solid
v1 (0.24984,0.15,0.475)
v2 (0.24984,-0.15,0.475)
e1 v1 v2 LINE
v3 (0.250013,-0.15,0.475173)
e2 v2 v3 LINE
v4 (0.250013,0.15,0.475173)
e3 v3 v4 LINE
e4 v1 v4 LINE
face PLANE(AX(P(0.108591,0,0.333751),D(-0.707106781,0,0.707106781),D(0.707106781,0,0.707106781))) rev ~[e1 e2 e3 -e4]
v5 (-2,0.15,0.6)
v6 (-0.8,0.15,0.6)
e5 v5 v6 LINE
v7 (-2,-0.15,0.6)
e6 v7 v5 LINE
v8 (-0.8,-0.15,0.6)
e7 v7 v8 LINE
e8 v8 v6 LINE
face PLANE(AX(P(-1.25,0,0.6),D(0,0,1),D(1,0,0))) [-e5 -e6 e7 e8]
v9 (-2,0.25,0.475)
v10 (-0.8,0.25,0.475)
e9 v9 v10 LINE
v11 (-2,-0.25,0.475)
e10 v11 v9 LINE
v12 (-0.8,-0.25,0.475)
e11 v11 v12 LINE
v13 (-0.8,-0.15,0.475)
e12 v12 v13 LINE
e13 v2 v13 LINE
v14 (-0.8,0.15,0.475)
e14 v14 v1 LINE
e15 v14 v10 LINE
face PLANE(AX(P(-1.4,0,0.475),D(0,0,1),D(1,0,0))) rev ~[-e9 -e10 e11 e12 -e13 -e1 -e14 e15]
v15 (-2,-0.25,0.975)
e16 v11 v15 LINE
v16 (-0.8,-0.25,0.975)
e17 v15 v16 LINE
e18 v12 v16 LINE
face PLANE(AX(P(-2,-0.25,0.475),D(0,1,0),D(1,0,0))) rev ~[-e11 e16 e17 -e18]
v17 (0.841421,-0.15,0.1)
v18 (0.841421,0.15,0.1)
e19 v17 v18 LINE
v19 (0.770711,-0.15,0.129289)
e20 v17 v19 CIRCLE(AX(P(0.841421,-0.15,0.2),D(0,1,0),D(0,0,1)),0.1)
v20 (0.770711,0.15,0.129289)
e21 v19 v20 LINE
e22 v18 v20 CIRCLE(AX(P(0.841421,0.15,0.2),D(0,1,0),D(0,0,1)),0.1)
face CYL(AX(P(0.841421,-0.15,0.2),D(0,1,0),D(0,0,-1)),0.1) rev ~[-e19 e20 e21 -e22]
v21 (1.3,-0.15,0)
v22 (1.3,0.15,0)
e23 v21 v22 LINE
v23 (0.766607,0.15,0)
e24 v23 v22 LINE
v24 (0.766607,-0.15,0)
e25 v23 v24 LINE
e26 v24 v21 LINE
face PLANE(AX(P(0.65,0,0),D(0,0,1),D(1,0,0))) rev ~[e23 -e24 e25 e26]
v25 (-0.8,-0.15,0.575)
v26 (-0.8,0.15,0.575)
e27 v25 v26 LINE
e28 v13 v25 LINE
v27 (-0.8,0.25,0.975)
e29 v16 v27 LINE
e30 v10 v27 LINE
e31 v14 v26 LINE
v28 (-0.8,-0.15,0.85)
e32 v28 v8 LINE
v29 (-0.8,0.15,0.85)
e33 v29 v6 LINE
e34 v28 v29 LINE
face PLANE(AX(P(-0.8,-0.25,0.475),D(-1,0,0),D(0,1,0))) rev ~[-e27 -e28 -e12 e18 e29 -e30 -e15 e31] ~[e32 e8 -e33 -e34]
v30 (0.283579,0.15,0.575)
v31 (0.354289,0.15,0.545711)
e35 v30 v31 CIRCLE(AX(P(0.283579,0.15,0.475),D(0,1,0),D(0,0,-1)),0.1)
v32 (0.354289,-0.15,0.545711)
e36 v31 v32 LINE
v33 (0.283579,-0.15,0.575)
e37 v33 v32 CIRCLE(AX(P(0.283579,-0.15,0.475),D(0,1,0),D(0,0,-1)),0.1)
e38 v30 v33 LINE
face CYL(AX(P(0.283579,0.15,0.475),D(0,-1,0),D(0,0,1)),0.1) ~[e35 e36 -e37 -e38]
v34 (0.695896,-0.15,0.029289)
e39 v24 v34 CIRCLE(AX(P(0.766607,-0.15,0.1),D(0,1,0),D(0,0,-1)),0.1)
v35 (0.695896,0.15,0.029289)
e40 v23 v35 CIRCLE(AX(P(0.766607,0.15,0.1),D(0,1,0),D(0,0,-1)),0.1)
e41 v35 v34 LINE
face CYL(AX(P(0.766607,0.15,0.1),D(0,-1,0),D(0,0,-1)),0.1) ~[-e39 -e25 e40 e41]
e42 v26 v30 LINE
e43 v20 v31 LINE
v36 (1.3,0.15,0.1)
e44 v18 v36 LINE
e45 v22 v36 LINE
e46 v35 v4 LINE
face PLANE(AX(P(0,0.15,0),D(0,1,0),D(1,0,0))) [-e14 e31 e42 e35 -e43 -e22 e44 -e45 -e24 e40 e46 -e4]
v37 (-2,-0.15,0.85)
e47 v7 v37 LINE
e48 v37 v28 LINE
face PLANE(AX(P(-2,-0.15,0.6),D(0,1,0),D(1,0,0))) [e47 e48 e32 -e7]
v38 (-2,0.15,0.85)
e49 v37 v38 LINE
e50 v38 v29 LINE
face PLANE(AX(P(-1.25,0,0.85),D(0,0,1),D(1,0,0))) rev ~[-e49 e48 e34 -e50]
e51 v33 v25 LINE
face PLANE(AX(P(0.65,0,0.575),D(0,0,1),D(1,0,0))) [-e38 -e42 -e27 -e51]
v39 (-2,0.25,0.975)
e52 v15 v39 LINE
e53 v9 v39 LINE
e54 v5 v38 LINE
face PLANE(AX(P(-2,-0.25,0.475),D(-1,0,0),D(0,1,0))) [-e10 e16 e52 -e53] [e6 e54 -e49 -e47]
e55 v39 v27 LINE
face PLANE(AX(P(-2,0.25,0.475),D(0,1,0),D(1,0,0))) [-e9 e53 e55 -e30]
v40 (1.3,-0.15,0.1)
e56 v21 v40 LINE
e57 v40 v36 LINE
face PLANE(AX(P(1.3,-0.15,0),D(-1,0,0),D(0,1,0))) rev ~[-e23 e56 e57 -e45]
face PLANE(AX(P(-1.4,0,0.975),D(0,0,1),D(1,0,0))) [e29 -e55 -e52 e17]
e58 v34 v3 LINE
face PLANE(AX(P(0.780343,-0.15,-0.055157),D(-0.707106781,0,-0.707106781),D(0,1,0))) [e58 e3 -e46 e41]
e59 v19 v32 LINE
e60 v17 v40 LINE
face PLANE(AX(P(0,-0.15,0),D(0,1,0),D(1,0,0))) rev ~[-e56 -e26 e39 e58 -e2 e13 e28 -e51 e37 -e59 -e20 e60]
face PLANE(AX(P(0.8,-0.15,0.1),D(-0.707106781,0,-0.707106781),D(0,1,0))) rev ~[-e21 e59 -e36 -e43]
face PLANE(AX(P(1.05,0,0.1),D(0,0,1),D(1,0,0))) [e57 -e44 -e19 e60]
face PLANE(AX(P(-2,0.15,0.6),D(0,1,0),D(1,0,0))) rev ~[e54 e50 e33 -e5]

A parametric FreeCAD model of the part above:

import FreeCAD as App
import Part
import Sketcher

V = App.Vector


def edges_at(feature, points):
    """Names of the edges that pass closest to the given points."""
    edges = feature.Shape.Edges
    near = lambda p: min(range(len(edges)), key=lambda i: edges[i].distToShape(Part.Vertex(*p))[0])
    return sorted({f"Edge{near(p) + 1}" for p in points})


def add_polygon(sketch, points):
    """Adds a closed chain of lines whose ends are joined by coincident constraints."""
    first, n = sketch.GeometryCount, len(points)
    for a, b in zip(points, points[1:] + points[:1]):
        sketch.addGeometry(Part.LineSegment(App.Vector(*a, 0), App.Vector(*b, 0)), False)
    for i in range(n):
        sketch.addConstraint(Sketcher.Constraint("Coincident", first + i, 2, first + (i + 1) % n, 1))

doc = App.newDocument("Part")
body = doc.addObject("PartDesign::Body", "Body")

# Sketch on XY plane
sketch1 = body.newObject("Sketcher::SketchObject", "Sketch")
sketch1.AttachmentSupport = (doc.getObject("XY_Plane"), [""])
sketch1.MapMode = "FlatFace"
sketch1.AttachmentOffset = App.Placement(V(0, 0, 0.475), App.Rotation())
add_polygon(sketch1, [(-2, 4.75), (-2, 4.25), (-0.8, 4.25), (-0.8, 4.75)])  # lines 0-3
sketch1.addConstraint([
    Sketcher.Constraint("Vertical", 0),
    Sketcher.Constraint("Horizontal", 1),
    Sketcher.Constraint("Vertical", 2),
    Sketcher.Constraint("Horizontal", 3),
    Sketcher.Constraint("DistanceX", 1, 1, 1, 2, 1.2),
    Sketcher.Constraint("DistanceY", 0, 2, 0, 1, 0.5),
    Sketcher.Constraint("DistanceX", 0, 2, -1, 1, 2.0),
    Sketcher.Constraint("DistanceY", -1, 1, 0, 2, 4.25),
])
pad1 = body.newObject("PartDesign::Pad", "Pad")
pad1.Profile = sketch1
pad1.Length = 0.5

# Sketch on XY plane
sketch2 = body.newObject("Sketcher::SketchObject", "Sketch001")
sketch2.AttachmentSupport = (doc.getObject("XY_Plane"), [""])
sketch2.MapMode = "FlatFace"
sketch2.AttachmentOffset = App.Placement(V(0, 0, 0.475), App.Rotation())
add_polygon(sketch2, [(-0.8, 4.65), (-0.8, 4.35), (0.7, 4.35), (0.7, 4.65)])  # lines 0-3
sketch2.addConstraint([
    Sketcher.Constraint("Vertical", 0),
    Sketcher.Constraint("Horizontal", 1),
    Sketcher.Constraint("Vertical", 2),
    Sketcher.Constraint("Horizontal", 3),
    Sketcher.Constraint("DistanceX", 1, 1, 1, 2, 1.5),
    Sketcher.Constraint("DistanceY", 0, 2, 0, 1, 0.3),
    Sketcher.Constraint("DistanceX", 0, 2, -1, 1, 0.8),
    Sketcher.Constraint("DistanceY", -1, 1, 0, 2, 4.35),
])
pad2 = body.newObject("PartDesign::Pad", "Pad001")
pad2.Profile = sketch2
pad2.Length = 0.1

# Sketch on XY plane
sketch3 = body.newObject("Sketcher::SketchObject", "Sketch002")
sketch3.AttachmentSupport = (doc.getObject("XY_Plane"), [""])
sketch3.MapMode = "FlatFace"
add_polygon(sketch3, [(0, 4.65), (0, 4.35), (1.3, 4.35), (1.3, 4.65)])  # lines 0-3
sketch3.addConstraint([
    Sketcher.Constraint("Vertical", 0),
    Sketcher.Constraint("Horizontal", 1),
    Sketcher.Constraint("Vertical", 2),
    Sketcher.Constraint("Horizontal", 3),
    Sketcher.Constraint("PointOnObject", 0, 2, -2),
    Sketcher.Constraint("DistanceX", 1, 1, 1, 2, 1.3),
    Sketcher.Constraint("DistanceY", 0, 2, 0, 1, 0.3),
    Sketcher.Constraint("DistanceY", -1, 1, 0, 2, 4.35),
])
pad3 = body.newObject("PartDesign::Pad", "Pad002")
pad3.Profile = sketch3
pad3.Length = 0.575

# Sketch on XY plane
sketch4 = body.newObject("Sketcher::SketchObject", "Sketch003")
sketch4.AttachmentSupport = (doc.getObject("XY_Plane"), [""])
sketch4.MapMode = "FlatFace"
add_polygon(sketch4, [(0, 4.65), (0, 4.35), (0.25, 4.35), (0.25, 4.65)])  # lines 0-3
sketch4.addConstraint([
    Sketcher.Constraint("Vertical", 0),
    Sketcher.Constraint("Horizontal", 1),
    Sketcher.Constraint("Vertical", 2),
    Sketcher.Constraint("Horizontal", 3),
    Sketcher.Constraint("PointOnObject", 0, 2, -2),
    Sketcher.Constraint("DistanceY", 0, 2, 0, 1, 0.3),
    Sketcher.Constraint("DistanceX", 1, 1, 1, 2, 0.25),
    Sketcher.Constraint("DistanceY", -1, 1, 0, 2, 4.35),
])
pocket1 = body.newObject("PartDesign::Pocket", "Pocket")
pocket1.Profile = sketch4
pocket1.Length = 0.475
pocket1.Reversed = True

# Sketch on XY plane
sketch5 = body.newObject("Sketcher::SketchObject", "Sketch004")
sketch5.AttachmentSupport = (doc.getObject("XY_Plane"), [""])
sketch5.MapMode = "FlatFace"
sketch5.AttachmentOffset = App.Placement(V(0, 0, 0.1), App.Rotation())
add_polygon(sketch5, [(0.8, 4.65), (0.8, 4.35), (1.3, 4.35), (1.3, 4.65)])  # lines 0-3
sketch5.addConstraint([
    Sketcher.Constraint("Vertical", 0),
    Sketcher.Constraint("Horizontal", 1),
    Sketcher.Constraint("Vertical", 2),
    Sketcher.Constraint("Horizontal", 3),
    Sketcher.Constraint("DistanceX", 1, 1, 1, 2, 0.5),
    Sketcher.Constraint("DistanceY", 0, 2, 0, 1, 0.3),
    Sketcher.Constraint("DistanceX", -1, 1, 0, 2, 0.8),
    Sketcher.Constraint("DistanceY", -1, 1, 0, 2, 4.35),
])
pocket2 = body.newObject("PartDesign::Pocket", "Pocket001")
pocket2.Profile = sketch5
pocket2.Length = 0.5
pocket2.Reversed = True

# Sketch on an angled plane
sketch6 = body.newObject("Sketcher::SketchObject", "Sketch005")
sketch6.Placement = App.Placement(V(0.8, 4.35, 0.1), App.Rotation(V(0.707106781, 0, 0.707106781), V(0, 0.999999999, 0), V(-0.707106781, 0, 0.707106781), "ZXY"))
add_polygon(sketch6, [(0, 0.3), (0, 0), (0.5, 0), (0.5, 0.3)])  # lines 0-3
sketch6.addConstraint([
    Sketcher.Constraint("Vertical", 0),
    Sketcher.Constraint("Horizontal", 1),
    Sketcher.Constraint("Vertical", 2),
    Sketcher.Constraint("Horizontal", 3),
    Sketcher.Constraint("Coincident", 0, 2, -1, 1),
    Sketcher.Constraint("DistanceX", 1, 1, 1, 2, 0.5),
    Sketcher.Constraint("DistanceY", 0, 2, 0, 1, 0.3),
])
pocket3 = body.newObject("PartDesign::Pocket", "Pocket002")
pocket3.Profile = sketch6
pocket3.Length = 0.75
pocket3.Reversed = True

# Sketch on an angled plane
sketch7 = body.newObject("Sketcher::SketchObject", "Sketch006")
sketch7.Placement = App.Placement(V(0.4975, 4.35, -0.338), App.Rotation(V(0.707106781, 0, 0.707106781), V(0, 0.999999999, 0), V(-0.707106781, 0, 0.707106781), "ZXY"))
add_polygon(sketch7, [(0, 0.3), (0, 0), (0.4, 0), (0.4, 0.3)])  # lines 0-3
sketch7.addConstraint([
    Sketcher.Constraint("Vertical", 0),
    Sketcher.Constraint("Horizontal", 1),
    Sketcher.Constraint("Vertical", 2),
    Sketcher.Constraint("Horizontal", 3),
    Sketcher.Constraint("Coincident", 0, 2, -1, 1),
    Sketcher.Constraint("DistanceX", 1, 1, 1, 2, 0.4),
    Sketcher.Constraint("DistanceY", 0, 2, 0, 1, 0.3),
])
pocket4 = body.newObject("PartDesign::Pocket", "Pocket003")
pocket4.Profile = sketch7
pocket4.Length = 0.75
pocket4.Reversed = True
doc.recompute()

fillet = body.newObject("PartDesign::Fillet", "Fillet")
fillet.Base = (pocket4, edges_at(pocket4, [(0.325, 4.5, 0.575)]))
fillet.Radius = 0.1
doc.recompute()

fillet2 = body.newObject("PartDesign::Fillet", "Fillet001")
fillet2.Base = (fillet, edges_at(fillet, [(0.725, 4.5, 0)]))
fillet2.Radius = 0.1

# Sketch on XY plane
sketch8 = body.newObject("Sketcher::SketchObject", "Sketch007")
sketch8.AttachmentSupport = (doc.getObject("XY_Plane"), [""])
sketch8.MapMode = "FlatFace"
sketch8.AttachmentOffset = App.Placement(V(0, 0, 0.6), App.Rotation())
add_polygon(sketch8, [(-2, 4.65), (-2, 4.35), (-0.5, 4.35), (-0.5, 4.65)])  # lines 0-3
sketch8.addConstraint([
    Sketcher.Constraint("Vertical", 0),
    Sketcher.Constraint("Horizontal", 1),
    Sketcher.Constraint("Vertical", 2),
    Sketcher.Constraint("Horizontal", 3),
    Sketcher.Constraint("DistanceX", 1, 1, 1, 2, 1.5),
    Sketcher.Constraint("DistanceY", 0, 2, 0, 1, 0.3),
    Sketcher.Constraint("DistanceX", 0, 2, -1, 1, 2.0),
    Sketcher.Constraint("DistanceY", -1, 1, 0, 2, 4.35),
])
pocket5 = body.newObject("PartDesign::Pocket", "Pocket004")
pocket5.Profile = sketch8
pocket5.Length = 0.25
pocket5.Reversed = True
doc.recompute()

fillet3 = body.newObject("PartDesign::Fillet", "Fillet002")
fillet3.Base = (pocket5, edges_at(pocket5, [(0.8, 4.5, 0.1)]))
fillet3.Radius = 0.1
body2 = doc.addObject("PartDesign::Body", "Body001")
doc.recompute()

body.Placement = App.Placement(V(0, -4.5, 0), App.Rotation(V(0, 0, 1), 0))
boolean = body2.newObject("PartDesign::Boolean", "Boolean")
boolean.Type = "Fuse"
boolean.addObjects([body])

doc.recompute()
